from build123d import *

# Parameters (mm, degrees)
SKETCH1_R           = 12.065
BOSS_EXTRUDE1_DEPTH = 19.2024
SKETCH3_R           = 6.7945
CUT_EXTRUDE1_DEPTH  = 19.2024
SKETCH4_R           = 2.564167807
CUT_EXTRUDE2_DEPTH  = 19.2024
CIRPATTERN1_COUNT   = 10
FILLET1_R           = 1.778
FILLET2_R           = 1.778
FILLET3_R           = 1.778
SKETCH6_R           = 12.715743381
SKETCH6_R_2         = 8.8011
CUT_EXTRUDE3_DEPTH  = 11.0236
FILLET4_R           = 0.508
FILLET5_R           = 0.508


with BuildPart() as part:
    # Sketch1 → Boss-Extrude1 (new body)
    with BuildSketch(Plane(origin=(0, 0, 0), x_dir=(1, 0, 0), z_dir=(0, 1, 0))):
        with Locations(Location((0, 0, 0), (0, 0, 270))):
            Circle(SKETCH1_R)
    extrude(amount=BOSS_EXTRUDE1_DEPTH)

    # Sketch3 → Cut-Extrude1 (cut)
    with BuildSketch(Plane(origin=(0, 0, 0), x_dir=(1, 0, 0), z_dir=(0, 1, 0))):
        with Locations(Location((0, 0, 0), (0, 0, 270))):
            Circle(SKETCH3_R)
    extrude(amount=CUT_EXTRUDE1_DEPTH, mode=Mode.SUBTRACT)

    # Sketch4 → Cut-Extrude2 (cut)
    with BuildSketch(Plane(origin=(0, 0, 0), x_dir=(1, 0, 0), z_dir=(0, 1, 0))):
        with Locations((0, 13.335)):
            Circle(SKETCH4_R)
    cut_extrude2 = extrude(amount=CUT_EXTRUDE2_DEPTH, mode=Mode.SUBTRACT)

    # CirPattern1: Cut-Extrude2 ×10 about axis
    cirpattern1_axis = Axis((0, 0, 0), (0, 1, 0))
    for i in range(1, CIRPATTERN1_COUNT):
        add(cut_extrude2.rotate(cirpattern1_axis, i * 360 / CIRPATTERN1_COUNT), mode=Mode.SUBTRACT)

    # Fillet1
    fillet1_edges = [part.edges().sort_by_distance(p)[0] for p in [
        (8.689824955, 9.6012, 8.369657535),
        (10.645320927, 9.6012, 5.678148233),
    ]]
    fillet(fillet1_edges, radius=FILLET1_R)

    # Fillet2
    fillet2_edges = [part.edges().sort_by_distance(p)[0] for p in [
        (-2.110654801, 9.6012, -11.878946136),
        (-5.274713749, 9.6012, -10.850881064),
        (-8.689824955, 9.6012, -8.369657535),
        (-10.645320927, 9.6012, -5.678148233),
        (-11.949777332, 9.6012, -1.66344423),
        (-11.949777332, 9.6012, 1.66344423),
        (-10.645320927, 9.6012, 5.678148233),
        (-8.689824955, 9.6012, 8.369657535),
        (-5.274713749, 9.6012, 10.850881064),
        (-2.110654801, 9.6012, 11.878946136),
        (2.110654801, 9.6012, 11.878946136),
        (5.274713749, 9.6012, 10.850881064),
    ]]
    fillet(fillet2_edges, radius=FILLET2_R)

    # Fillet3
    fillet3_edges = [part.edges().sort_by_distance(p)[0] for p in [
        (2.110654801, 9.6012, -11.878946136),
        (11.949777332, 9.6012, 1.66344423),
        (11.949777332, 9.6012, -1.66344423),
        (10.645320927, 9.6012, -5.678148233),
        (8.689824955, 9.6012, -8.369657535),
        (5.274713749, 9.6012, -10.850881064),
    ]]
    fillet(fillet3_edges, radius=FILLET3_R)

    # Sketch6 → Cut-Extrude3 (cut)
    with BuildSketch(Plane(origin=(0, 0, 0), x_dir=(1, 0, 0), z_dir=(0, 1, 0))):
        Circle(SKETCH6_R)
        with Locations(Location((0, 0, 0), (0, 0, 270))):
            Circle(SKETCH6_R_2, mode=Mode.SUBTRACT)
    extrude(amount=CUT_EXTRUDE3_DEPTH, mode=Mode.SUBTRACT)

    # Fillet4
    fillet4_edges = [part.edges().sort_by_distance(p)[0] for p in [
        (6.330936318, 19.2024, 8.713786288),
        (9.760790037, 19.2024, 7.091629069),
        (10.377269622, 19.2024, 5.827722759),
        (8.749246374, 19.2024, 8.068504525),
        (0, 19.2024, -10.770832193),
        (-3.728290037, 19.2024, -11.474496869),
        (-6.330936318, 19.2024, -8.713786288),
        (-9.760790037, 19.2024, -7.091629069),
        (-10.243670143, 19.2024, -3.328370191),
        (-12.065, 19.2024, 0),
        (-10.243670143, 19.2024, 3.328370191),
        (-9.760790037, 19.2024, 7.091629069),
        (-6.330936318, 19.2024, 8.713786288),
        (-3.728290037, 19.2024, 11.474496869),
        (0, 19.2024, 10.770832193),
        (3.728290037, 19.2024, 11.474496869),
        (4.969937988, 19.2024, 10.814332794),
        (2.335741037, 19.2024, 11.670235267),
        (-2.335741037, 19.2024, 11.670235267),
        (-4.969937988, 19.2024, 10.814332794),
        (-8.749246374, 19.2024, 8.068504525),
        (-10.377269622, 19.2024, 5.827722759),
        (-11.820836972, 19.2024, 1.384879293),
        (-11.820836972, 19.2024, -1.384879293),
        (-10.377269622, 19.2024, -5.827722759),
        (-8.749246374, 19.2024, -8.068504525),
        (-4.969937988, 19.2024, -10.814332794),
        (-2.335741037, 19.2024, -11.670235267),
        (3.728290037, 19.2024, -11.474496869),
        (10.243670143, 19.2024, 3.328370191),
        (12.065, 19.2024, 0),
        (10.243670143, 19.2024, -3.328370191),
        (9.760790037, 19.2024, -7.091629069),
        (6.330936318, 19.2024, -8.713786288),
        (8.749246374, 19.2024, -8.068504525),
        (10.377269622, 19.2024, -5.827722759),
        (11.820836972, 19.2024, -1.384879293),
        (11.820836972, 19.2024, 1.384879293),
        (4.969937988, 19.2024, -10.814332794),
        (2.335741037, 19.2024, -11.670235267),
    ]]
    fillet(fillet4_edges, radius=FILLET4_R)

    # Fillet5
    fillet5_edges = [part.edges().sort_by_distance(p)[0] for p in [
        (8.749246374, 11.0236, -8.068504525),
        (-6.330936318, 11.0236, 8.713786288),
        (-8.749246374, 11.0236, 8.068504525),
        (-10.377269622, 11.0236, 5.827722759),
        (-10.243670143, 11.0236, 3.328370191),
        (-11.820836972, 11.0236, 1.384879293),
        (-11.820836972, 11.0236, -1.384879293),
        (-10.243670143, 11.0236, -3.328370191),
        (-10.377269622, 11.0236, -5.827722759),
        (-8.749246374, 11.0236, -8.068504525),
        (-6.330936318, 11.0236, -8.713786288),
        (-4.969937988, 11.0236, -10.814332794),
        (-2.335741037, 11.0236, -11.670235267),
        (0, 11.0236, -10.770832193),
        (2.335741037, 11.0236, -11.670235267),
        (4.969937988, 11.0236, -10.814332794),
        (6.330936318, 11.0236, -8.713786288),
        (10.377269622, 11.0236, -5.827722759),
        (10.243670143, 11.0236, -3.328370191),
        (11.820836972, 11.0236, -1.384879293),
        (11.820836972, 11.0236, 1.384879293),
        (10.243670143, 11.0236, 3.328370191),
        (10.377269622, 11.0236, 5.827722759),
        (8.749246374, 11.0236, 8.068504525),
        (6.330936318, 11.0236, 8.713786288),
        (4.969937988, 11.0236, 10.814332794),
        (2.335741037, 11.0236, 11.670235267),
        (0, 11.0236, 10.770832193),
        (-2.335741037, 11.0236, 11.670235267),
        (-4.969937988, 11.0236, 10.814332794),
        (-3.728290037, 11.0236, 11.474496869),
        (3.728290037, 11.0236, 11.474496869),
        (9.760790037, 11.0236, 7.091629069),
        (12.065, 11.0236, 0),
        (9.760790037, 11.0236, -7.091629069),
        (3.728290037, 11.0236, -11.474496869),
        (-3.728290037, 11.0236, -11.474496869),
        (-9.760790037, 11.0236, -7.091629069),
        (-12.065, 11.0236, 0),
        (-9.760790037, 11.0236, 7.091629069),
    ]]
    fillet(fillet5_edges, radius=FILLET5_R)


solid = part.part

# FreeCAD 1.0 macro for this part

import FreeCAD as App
import Part
import Sketcher
from FreeCAD import Vector
Q = App.Units.Quantity


def edges_at(feature, points):
    """Names of the edges that pass closest to the given points."""
    edges = feature.Shape.Edges
    near = lambda p: min(range(len(edges)), key=lambda i: edges[i].distToShape(Part.Vertex(*p))[0])
    return sorted({f"Edge{near(p) + 1}" for p in points})

doc = App.newDocument("Part")
params = doc.addObject("Spreadsheet::Sheet", "Params")
for row, (alias, value) in enumerate([
    ("sketch1_diameter", "0.95 in"),
    ("pad1_length", "0.756 in"),
    ("sketch2_diameter", "0.535 in"),
    ("pocket1_length", "0.756 in"),
    ("pocket2_length", "0.756 in"),
    ("fillet_radius", "0.07 in"),
    ("fillet2_radius", "0.07 in"),
    ("fillet3_radius", "0.07 in"),
    ("sketch4_diameter", "0.693 in"),
    ("pocket3_length", "0.434 in"),
    ("fillet4_radius", "0.02 in"),
    ("fillet5_radius", "0.02 in"),
], start=1):
    params.set(f"A{row}", alias)
    params.set(f"B{row}", "=" + value)
    params.setAlias(f"B{row}", alias)

body = doc.addObject("PartDesign::Body", "Body")

# Sketch on XZ plane
sketch1 = body.newObject("Sketcher::SketchObject", "Sketch")
sketch1.AttachmentSupport = (doc.getObject("XZ_Plane"), [""])
sketch1.MapMode = "FlatFace"
sketch1.addGeometry(Part.Circle(Vector(0, 0, 0), Vector(0, 0, 1), 12), False)
sketch1.addConstraint([
    Sketcher.Constraint("Coincident", 0, 3, -1, 1),
    Sketcher.Constraint("Diameter", 0, Q("0.95 in")),
])
sketch1.setExpression("Constraints[1]", "Params.sketch1_diameter")
pad1 = body.newObject("PartDesign::Pad", "Pad")
pad1.Profile = sketch1
pad1.setExpression("Length", "Params.pad1_length")
pad1.Reversed = True

# Sketch on XZ plane
sketch2 = body.newObject("Sketcher::SketchObject", "Sketch001")
sketch2.AttachmentSupport = (doc.getObject("XZ_Plane"), [""])
sketch2.MapMode = "FlatFace"
sketch2.addGeometry(Part.Circle(Vector(0, 0, 0), Vector(0, 0, 1), 7), False)
sketch2.addConstraint([
    Sketcher.Constraint("Coincident", 0, 3, -1, 1),
    Sketcher.Constraint("Diameter", 0, Q("0.535 in")),
])
sketch2.setExpression("Constraints[1]", "Params.sketch2_diameter")
pocket1 = body.newObject("PartDesign::Pocket", "Pocket")
pocket1.Profile = sketch2
pocket1.setExpression("Length", "Params.pocket1_length")

# Sketch on XZ plane
sketch3 = body.newObject("Sketcher::SketchObject", "Sketch002")
sketch3.AttachmentSupport = (doc.getObject("XZ_Plane"), [""])
sketch3.MapMode = "FlatFace"
sketch3.addGeometry(Part.Circle(Vector(0, -13.3, 0), Vector(0, 0, 1), 2.6), False)
sketch3.addConstraint([
    Sketcher.Constraint("PointOnObject", 0, 3, -2),
    Sketcher.Constraint("DistanceY", 0, 3, -1, 1, Q("0.525 in")),
    Sketcher.Constraint("Diameter", 0, Q("5.128336 mm")),
])
pocket2 = body.newObject("PartDesign::Pocket", "Pocket001")
pocket2.Profile = sketch3
pocket2.setExpression("Length", "Params.pocket2_length")
doc.recompute()

polarpattern = body.newObject("PartDesign::PolarPattern", "PolarPattern")
polarpattern.Originals = [pocket2]
polarpattern.Axis = (doc.getObject("Y_Axis"), [""])
polarpattern.Angle = 360
polarpattern.Occurrences = 10
body.Tip = polarpattern
doc.recompute()

fillet = body.newObject("PartDesign::Fillet", "Fillet")
fillet.Base = (polarpattern, edges_at(polarpattern, [(8.69, 9.601, 8.37), (10.645, 9.601, 5.678)]))
fillet.setExpression("Radius", "Params.fillet_radius")
doc.recompute()

fillet2 = body.newObject("PartDesign::Fillet", "Fillet001")
fillet2.Base = (fillet, edges_at(fillet, [
    (-2.111, 9.601, -11.879),
    (-5.275, 9.601, -10.851),
    (-8.69, 9.601, -8.37),
    (-10.645, 9.601, -5.678),
    (-11.95, 9.601, -1.663),
    (-11.95, 9.601, 1.663),
    (-10.645, 9.601, 5.678),
    (-8.69, 9.601, 8.37),
    (-5.275, 9.601, 10.851),
    (-2.111, 9.601, 11.879),
    (2.111, 9.601, 11.879),
    (5.275, 9.601, 10.851),
]))
fillet2.setExpression("Radius", "Params.fillet2_radius")
doc.recompute()

fillet3 = body.newObject("PartDesign::Fillet", "Fillet002")
fillet3.Base = (fillet2, edges_at(fillet2, [
    (2.111, 9.601, -11.879),
    (11.95, 9.601, 1.663),
    (11.95, 9.601, -1.663),
    (10.645, 9.601, -5.678),
    (8.69, 9.601, -8.37),
    (5.275, 9.601, -10.851),
]))
fillet3.setExpression("Radius", "Params.fillet3_radius")

# Sketch on XZ plane
sketch4 = body.newObject("Sketcher::SketchObject", "Sketch003")
sketch4.AttachmentSupport = (doc.getObject("XZ_Plane"), [""])
sketch4.MapMode = "FlatFace"
sketch4.addGeometry([
    Part.Circle(Vector(0, 0, 0), Vector(0, 0, 1), 13),
    Part.Circle(Vector(0, 0, 0), Vector(0, 0, 1), 9),
], False)
sketch4.addConstraint([
    Sketcher.Constraint("Coincident", 0, 3, -1, 1),
    Sketcher.Constraint("Coincident", 1, 3, -1, 1),
    Sketcher.Constraint("Diameter", 1, Q("0.693 in")),
    Sketcher.Constraint("Diameter", 0, Q("25.431487 mm")),
])
sketch4.setExpression("Constraints[2]", "Params.sketch4_diameter")
pocket3 = body.newObject("PartDesign::Pocket", "Pocket002")
pocket3.Profile = sketch4
pocket3.setExpression("Length", "Params.pocket3_length")
doc.recompute()

fillet4 = body.newObject("PartDesign::Fillet", "Fillet003")
fillet4.Base = (pocket3, edges_at(pocket3, [
    (6.331, 19.202, 8.714),
    (9.761, 19.202, 7.092),
    (10.377, 19.202, 5.828),
    (8.749, 19.202, 8.069),
    (0, 19.202, -10.771),
    (-3.728, 19.202, -11.474),
    (-6.331, 19.202, -8.714),
    (-9.761, 19.202, -7.092),
    (-10.244, 19.202, -3.328),
    (-12.065, 19.202, 0),
    (-10.244, 19.202, 3.328),
    (-9.761, 19.202, 7.092),
    (-6.331, 19.202, 8.714),
    (-3.728, 19.202, 11.474),
    (0, 19.202, 10.771),
    (3.728, 19.202, 11.474),
    (4.97, 19.202, 10.814),
    (2.336, 19.202, 11.67),
    (-2.336, 19.202, 11.67),
    (-4.97, 19.202, 10.814),
    (-8.749, 19.202, 8.069),
    (-10.377, 19.202, 5.828),
    (-11.821, 19.202, 1.385),
    (-11.821, 19.202, -1.385),
    (-10.377, 19.202, -5.828),
    (-8.749, 19.202, -8.069),
    (-4.97, 19.202, -10.814),
    (-2.336, 19.202, -11.67),
    (3.728, 19.202, -11.474),
    (10.244, 19.202, 3.328),
    (12.065, 19.202, 0),
    (10.244, 19.202, -3.328),
    (9.761, 19.202, -7.092),
    (6.331, 19.202, -8.714),
    (8.749, 19.202, -8.069),
    (10.377, 19.202, -5.828),
    (11.821, 19.202, -1.385),
    (11.821, 19.202, 1.385),
    (4.97, 19.202, -10.814),
    (2.336, 19.202, -11.67),
]))
fillet4.setExpression("Radius", "Params.fillet4_radius")
doc.recompute()

fillet5 = body.newObject("PartDesign::Fillet", "Fillet004")
fillet5.Base = (fillet4, edges_at(fillet4, [
    (8.749, 11.024, -8.069),
    (-6.331, 11.024, 8.714),
    (-8.749, 11.024, 8.069),
    (-10.377, 11.024, 5.828),
    (-10.244, 11.024, 3.328),
    (-11.821, 11.024, 1.385),
    (-11.821, 11.024, -1.385),
    (-10.244, 11.024, -3.328),
    (-10.377, 11.024, -5.828),
    (-8.749, 11.024, -8.069),
    (-6.331, 11.024, -8.714),
    (-4.97, 11.024, -10.814),
    (-2.336, 11.024, -11.67),
    (0, 11.024, -10.771),
    (2.336, 11.024, -11.67),
    (4.97, 11.024, -10.814),
    (6.331, 11.024, -8.714),
    (10.377, 11.024, -5.828),
    (10.244, 11.024, -3.328),
    (11.821, 11.024, -1.385),
    (11.821, 11.024, 1.385),
    (10.244, 11.024, 3.328),
    (10.377, 11.024, 5.828),
    (8.749, 11.024, 8.069),
    (6.331, 11.024, 8.714),
    (4.97, 11.024, 10.814),
    (2.336, 11.024, 11.67),
    (0, 11.024, 10.771),
    (-2.336, 11.024, 11.67),
    (-4.97, 11.024, 10.814),
    (-3.728, 11.024, 11.474),
    (3.728, 11.024, 11.474),
    (9.761, 11.024, 7.092),
    (12.065, 11.024, 0),
    (9.761, 11.024, -7.092),
    (3.728, 11.024, -11.474),
    (-3.728, 11.024, -11.474),
    (-9.761, 11.024, -7.092),
    (-12.065, 11.024, 0),
    (-9.761, 11.024, 7.092),
]))
fillet5.setExpression("Radius", "Params.fillet5_radius")

doc.recompute()
